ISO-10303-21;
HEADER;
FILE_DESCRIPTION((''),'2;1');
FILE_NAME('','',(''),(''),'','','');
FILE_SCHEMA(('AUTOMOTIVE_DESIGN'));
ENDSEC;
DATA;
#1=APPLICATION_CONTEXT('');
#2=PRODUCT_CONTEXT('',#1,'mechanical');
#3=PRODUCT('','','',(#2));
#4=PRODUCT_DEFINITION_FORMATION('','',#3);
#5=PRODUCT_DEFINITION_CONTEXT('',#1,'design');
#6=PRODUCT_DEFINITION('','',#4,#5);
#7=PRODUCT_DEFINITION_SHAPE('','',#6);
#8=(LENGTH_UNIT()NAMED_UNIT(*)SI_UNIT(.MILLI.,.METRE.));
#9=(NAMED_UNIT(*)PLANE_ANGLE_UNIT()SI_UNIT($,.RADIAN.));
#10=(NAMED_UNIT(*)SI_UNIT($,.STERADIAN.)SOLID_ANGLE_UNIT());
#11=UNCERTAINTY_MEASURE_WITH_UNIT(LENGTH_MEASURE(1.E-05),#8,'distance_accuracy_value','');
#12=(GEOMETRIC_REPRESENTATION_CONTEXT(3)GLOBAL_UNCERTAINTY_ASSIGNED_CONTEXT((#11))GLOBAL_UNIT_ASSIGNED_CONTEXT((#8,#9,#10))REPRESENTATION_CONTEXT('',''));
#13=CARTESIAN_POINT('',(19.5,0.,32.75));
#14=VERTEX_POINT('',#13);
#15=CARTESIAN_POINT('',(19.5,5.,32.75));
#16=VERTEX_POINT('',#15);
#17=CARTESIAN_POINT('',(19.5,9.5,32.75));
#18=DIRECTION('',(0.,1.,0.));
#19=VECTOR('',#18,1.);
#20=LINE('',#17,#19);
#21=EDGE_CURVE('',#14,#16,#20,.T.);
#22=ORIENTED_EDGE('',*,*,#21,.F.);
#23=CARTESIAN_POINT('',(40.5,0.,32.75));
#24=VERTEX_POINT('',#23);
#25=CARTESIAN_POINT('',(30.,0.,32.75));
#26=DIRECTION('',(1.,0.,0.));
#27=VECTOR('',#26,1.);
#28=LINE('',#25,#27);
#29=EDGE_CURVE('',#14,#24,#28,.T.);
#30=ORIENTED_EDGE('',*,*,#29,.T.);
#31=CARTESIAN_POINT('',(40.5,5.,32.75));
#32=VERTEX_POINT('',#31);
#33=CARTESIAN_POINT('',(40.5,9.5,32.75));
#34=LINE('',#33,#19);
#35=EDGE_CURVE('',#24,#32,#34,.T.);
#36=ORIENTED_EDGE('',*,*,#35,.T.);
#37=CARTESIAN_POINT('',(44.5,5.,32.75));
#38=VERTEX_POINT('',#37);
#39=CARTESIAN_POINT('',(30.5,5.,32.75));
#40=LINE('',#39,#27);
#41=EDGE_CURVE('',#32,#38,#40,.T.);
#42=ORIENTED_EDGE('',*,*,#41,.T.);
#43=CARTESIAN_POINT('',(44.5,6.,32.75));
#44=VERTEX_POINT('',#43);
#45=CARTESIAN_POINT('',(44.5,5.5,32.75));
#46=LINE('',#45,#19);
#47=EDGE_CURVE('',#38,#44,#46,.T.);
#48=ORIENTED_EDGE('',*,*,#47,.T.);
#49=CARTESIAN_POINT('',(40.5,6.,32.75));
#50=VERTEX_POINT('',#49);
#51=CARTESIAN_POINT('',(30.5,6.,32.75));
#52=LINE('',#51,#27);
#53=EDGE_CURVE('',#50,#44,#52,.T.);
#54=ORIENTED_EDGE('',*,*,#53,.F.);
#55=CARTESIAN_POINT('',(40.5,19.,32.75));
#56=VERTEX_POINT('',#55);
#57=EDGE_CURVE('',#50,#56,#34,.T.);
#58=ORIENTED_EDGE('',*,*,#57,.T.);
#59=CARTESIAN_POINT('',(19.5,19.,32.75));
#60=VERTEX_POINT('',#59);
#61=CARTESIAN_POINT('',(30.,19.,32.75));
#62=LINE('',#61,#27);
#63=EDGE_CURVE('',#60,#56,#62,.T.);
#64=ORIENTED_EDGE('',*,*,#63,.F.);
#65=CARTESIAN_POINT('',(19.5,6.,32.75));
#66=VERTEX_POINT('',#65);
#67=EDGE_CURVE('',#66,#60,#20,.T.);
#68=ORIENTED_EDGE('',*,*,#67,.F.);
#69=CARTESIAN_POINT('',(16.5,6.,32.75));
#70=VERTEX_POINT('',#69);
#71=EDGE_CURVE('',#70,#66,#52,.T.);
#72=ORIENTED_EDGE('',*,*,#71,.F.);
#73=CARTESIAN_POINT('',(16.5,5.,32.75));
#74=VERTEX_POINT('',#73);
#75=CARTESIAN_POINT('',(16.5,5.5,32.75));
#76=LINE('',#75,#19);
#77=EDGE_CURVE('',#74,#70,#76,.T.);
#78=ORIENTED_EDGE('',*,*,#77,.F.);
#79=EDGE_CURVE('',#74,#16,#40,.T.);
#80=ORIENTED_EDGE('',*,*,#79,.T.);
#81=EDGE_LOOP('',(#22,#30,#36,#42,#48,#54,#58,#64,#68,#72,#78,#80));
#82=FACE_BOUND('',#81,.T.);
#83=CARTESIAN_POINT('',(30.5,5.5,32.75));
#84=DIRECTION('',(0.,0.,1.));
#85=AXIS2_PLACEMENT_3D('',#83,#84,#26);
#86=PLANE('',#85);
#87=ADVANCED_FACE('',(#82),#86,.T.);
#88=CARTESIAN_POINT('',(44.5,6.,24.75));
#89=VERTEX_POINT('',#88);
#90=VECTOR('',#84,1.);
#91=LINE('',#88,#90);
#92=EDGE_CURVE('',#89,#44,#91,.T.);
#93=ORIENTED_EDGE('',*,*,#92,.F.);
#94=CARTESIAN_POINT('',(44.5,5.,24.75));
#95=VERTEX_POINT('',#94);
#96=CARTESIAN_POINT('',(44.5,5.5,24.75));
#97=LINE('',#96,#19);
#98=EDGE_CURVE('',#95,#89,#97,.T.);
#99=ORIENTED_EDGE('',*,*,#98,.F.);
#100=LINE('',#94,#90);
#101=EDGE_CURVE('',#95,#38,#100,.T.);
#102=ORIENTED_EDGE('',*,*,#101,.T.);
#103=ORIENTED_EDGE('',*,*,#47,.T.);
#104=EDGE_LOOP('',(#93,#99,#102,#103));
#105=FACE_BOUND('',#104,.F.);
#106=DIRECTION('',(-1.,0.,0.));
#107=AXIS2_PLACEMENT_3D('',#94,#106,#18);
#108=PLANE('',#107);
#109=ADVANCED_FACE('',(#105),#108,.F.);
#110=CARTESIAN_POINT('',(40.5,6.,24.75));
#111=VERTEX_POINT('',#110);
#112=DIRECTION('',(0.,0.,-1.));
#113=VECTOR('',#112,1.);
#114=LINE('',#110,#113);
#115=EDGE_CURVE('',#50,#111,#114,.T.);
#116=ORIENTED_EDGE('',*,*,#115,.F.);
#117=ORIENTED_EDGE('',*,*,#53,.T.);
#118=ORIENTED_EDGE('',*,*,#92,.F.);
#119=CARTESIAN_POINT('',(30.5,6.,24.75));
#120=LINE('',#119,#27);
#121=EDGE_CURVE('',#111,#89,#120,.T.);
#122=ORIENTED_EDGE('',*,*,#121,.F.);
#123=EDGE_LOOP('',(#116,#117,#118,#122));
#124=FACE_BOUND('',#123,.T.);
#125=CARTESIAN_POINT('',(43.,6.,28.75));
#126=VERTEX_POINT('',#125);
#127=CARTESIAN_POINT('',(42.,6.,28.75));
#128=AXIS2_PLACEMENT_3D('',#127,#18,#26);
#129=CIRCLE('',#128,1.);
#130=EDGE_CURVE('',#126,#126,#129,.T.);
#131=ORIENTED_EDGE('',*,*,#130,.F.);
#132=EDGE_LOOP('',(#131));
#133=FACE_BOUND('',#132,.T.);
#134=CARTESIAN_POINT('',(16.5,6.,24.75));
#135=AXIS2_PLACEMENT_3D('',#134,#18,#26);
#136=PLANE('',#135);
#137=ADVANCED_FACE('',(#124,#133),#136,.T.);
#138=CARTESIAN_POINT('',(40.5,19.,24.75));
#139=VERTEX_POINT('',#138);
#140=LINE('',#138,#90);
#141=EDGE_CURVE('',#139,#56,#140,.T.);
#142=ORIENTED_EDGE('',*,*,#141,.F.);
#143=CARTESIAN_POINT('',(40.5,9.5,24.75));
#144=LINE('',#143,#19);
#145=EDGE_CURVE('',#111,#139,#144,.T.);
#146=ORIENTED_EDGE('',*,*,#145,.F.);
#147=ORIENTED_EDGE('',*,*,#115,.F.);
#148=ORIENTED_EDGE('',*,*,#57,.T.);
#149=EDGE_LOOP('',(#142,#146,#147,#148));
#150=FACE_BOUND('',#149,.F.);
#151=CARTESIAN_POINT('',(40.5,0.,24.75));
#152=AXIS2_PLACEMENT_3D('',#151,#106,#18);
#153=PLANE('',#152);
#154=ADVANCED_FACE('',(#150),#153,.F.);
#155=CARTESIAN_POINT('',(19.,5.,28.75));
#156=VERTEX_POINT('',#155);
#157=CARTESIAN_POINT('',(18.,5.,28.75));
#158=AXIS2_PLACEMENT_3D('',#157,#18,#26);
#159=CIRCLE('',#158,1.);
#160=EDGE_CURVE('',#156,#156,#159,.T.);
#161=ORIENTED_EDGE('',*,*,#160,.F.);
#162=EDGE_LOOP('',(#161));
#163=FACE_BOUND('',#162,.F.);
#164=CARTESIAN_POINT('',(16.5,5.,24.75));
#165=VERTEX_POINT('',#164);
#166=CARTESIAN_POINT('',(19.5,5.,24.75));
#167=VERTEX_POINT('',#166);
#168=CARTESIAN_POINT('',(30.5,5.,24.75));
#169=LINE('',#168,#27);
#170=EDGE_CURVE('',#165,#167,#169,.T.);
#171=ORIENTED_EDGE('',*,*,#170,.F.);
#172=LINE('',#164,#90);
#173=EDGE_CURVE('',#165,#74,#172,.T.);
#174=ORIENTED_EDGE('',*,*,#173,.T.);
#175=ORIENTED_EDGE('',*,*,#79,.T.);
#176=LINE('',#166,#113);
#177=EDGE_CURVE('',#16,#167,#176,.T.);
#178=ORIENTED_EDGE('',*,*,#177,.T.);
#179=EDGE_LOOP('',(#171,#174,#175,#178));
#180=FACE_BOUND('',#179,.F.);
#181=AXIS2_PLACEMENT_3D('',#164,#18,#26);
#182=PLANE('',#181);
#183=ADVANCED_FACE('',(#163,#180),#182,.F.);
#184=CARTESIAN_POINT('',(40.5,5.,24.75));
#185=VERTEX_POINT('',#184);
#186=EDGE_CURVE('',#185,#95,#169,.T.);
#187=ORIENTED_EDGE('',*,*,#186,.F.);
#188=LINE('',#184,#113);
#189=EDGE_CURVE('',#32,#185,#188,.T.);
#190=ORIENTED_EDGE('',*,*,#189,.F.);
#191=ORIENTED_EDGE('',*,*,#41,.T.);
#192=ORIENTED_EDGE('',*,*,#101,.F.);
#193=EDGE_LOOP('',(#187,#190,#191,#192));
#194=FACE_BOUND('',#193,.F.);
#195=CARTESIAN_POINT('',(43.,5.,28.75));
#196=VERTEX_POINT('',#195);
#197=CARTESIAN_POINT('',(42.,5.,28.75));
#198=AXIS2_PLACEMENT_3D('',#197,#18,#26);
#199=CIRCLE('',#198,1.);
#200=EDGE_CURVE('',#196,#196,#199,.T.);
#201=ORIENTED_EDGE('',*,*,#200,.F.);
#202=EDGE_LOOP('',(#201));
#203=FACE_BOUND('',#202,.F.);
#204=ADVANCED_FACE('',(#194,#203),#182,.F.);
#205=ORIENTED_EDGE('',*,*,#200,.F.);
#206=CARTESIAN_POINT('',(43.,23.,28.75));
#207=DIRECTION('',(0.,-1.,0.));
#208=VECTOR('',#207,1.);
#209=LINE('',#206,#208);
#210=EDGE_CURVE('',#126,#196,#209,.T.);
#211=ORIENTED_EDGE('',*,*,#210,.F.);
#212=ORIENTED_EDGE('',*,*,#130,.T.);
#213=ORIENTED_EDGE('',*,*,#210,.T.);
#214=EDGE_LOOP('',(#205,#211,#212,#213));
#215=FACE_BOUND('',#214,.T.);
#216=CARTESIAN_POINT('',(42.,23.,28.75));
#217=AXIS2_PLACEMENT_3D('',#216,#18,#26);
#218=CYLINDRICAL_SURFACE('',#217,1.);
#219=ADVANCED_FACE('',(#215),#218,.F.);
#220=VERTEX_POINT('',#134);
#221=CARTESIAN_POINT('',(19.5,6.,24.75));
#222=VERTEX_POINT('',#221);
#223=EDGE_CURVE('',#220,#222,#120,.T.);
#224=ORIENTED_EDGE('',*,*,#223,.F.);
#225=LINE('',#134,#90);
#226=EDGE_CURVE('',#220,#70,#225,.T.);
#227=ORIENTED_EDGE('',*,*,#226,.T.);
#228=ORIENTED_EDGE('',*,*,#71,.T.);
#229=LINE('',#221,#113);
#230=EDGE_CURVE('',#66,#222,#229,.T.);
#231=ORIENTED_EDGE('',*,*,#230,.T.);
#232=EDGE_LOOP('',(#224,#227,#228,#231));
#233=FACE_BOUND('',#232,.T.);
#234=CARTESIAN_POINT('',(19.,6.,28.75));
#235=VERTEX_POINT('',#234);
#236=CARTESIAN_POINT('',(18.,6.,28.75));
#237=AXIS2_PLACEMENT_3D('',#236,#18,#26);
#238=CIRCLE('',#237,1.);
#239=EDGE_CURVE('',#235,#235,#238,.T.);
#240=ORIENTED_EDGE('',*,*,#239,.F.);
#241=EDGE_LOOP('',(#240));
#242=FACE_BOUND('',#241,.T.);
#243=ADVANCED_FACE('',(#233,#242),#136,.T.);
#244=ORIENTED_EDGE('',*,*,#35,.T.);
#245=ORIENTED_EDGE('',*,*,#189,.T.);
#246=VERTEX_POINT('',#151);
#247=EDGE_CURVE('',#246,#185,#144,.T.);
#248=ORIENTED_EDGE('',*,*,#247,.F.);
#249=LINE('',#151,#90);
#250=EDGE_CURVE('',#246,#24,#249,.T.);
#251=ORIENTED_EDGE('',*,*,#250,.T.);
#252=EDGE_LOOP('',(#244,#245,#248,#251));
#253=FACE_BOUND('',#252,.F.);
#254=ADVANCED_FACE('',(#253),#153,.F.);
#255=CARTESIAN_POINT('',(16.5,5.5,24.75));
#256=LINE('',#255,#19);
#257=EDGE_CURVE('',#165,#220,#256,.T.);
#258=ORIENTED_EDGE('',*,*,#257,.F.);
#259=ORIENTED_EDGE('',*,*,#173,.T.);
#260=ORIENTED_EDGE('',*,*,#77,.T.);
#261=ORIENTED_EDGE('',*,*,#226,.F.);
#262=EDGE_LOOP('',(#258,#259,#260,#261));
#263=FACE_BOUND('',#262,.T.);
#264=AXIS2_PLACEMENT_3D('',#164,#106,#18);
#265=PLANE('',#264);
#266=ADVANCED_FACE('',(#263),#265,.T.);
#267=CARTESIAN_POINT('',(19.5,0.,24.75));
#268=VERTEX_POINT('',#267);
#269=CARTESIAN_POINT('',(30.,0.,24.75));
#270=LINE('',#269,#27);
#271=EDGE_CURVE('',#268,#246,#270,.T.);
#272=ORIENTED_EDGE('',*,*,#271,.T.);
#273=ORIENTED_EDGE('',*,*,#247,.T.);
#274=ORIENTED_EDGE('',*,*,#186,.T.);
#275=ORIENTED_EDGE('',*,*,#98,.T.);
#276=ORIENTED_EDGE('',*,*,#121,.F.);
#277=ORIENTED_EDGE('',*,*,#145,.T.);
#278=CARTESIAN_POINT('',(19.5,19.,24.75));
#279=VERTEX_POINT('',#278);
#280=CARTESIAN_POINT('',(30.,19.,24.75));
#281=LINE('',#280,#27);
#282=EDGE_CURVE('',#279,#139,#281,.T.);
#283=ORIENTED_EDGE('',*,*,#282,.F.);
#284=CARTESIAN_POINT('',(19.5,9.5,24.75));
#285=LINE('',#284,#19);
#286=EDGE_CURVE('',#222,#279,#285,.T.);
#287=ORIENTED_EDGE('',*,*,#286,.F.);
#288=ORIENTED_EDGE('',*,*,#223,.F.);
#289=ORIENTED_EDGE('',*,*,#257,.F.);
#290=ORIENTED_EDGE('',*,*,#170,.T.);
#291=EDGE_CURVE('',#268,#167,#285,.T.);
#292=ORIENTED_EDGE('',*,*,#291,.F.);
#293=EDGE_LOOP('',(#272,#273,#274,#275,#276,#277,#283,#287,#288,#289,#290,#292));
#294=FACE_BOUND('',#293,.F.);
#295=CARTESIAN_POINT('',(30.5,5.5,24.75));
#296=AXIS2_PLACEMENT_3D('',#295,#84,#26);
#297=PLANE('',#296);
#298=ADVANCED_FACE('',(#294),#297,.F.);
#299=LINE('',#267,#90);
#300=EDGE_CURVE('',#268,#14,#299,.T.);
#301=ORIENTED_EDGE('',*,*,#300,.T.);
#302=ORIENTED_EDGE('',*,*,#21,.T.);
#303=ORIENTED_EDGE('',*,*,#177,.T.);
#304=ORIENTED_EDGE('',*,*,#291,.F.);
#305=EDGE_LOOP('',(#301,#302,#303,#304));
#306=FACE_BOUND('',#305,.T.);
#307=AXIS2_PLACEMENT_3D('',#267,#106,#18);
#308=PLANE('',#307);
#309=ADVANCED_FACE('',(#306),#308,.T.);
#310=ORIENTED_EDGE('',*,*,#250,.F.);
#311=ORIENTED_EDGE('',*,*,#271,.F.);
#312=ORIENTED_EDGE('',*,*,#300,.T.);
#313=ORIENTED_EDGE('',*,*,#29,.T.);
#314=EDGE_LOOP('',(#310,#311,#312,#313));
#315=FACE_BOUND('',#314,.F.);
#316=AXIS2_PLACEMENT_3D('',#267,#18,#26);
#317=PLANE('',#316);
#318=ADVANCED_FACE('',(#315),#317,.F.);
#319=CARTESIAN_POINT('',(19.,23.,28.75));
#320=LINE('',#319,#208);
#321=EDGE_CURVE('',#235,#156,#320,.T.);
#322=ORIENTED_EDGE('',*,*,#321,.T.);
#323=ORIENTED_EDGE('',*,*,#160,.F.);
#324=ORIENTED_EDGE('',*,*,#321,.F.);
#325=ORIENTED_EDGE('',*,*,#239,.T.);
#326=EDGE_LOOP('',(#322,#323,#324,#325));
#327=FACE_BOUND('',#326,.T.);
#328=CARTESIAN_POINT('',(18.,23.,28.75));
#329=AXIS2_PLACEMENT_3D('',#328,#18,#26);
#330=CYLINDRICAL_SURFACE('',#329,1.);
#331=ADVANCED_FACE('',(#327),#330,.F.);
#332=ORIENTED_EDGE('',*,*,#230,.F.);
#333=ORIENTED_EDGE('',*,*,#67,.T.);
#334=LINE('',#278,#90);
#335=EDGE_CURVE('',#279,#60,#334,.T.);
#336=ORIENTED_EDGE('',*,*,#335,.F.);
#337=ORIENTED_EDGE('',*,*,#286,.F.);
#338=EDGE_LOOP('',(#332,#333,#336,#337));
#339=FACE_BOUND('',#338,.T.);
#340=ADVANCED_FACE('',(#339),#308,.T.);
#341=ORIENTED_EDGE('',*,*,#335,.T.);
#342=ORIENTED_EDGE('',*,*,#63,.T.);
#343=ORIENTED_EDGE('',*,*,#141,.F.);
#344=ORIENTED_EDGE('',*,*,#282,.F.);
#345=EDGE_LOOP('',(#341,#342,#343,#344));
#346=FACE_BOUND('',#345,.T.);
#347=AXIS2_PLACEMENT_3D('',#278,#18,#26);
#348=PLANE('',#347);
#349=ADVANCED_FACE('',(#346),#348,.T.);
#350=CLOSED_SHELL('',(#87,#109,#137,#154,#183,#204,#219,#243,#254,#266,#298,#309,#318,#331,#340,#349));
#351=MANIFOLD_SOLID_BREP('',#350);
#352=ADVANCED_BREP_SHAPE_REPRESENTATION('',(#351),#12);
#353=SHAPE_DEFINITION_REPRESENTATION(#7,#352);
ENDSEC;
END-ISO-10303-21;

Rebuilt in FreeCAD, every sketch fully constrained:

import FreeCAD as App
import Part
import Sketcher
from FreeCAD import Vector


def add_polygon(sketch, points):
    """Adds a closed chain of lines whose ends are joined by coincident constraints."""
    first, n = sketch.GeometryCount, len(points)
    for a, b in zip(points, points[1:] + points[:1]):
        sketch.addGeometry(Part.LineSegment(App.Vector(*a, 0), App.Vector(*b, 0)), False)
    for i in range(n):
        sketch.addConstraint(Sketcher.Constraint("Coincident", first + i, 2, first + (i + 1) % n, 1))

doc = App.newDocument("Part")
params = doc.addObject("Spreadsheet::Sheet", "Params")
for row, (alias, value) in enumerate([
    ("sketch1_diameter", "2 mm"),
    ("pad1_length", "20 mm"),
    ("sketch2_diameter", "2 mm"),
    ("pad2_length", "20 mm"),
    ("sketch3_width", "28 mm"),
    ("sketch3_height", "1 mm"),
    ("pad3_length", "8 mm"),
    ("sketch4_width", "21 mm"),
    ("sketch4_height", "19 mm"),
    ("pad4_length", "8 mm"),
], start=1):
    params.set(f"A{row}", alias)
    params.set(f"B{row}", "=" + value)
    params.setAlias(f"B{row}", alias)

body = doc.addObject("PartDesign::Body", "Body")

# Sketch on XZ plane
sketch1 = doc.addObject("Sketcher::SketchObject", "Sketch")
body.addObject(sketch1)
sketch1.AttachmentSupport = (doc.XZ_Plane, [""])
sketch1.MapMode = "FlatFace"
sketch1.AttachmentOffset = App.Placement(Vector(0, 0, -23), App.Rotation())
sketch1.addGeometry(Part.Circle(Vector(22.5, 30.5, 0), Vector(0, 0, 1), 1), False)
sketch1.addConstraint(Sketcher.Constraint("Diameter", 0, 2.0))
sketch1.addConstraint(Sketcher.Constraint("DistanceX", -1, 1, 0, 3, 22.5))
sketch1.addConstraint(Sketcher.Constraint("DistanceY", -1, 1, 0, 3, 30.5))
sketch1.setExpression("Constraints[0]", "Params.sketch1_diameter")
pad1 = doc.addObject("PartDesign::Pad", "Pad")
body.addObject(pad1)
pad1.Profile = sketch1
pad1.setExpression("Length", "Params.pad1_length")
body2 = doc.addObject("PartDesign::Body", "Body001")
body2.AllowCompound = True

# Sketch on XZ plane
sketch2 = doc.addObject("Sketcher::SketchObject", "Sketch001")
body2.addObject(sketch2)
sketch2.AttachmentSupport = (doc.getObject("XZ_Plane001"), [""])
sketch2.MapMode = "FlatFace"
sketch2.AttachmentOffset = App.Placement(Vector(0, 0, -23), App.Rotation())
sketch2.addGeometry(Part.Circle(Vector(-1.5, 30.5, 0), Vector(0, 0, 1), 1), False)
sketch2.addConstraint(Sketcher.Constraint("Diameter", 0, 2.0))
sketch2.addConstraint(Sketcher.Constraint("DistanceX", 0, 3, -1, 1, 1.5))
sketch2.addConstraint(Sketcher.Constraint("DistanceY", -1, 1, 0, 3, 30.5))
sketch2.setExpression("Constraints[0]", "Params.sketch2_diameter")
pad2 = doc.addObject("PartDesign::Pad", "Pad001")
body2.addObject(pad2)
pad2.Profile = sketch2
pad2.setExpression("Length", "Params.pad2_length")
doc.recompute()

boolean = doc.addObject("PartDesign::Boolean", "Boolean")
body2.addObject(boolean)
boolean.Type = "Fuse"
boolean.addObjects([body])
body3 = doc.addObject("PartDesign::Body", "Body002")

# Sketch on XY plane
sketch3 = doc.addObject("Sketcher::SketchObject", "Sketch002")
body3.addObject(sketch3)
sketch3.AttachmentSupport = (doc.getObject("XY_Plane002"), [""])
sketch3.MapMode = "FlatFace"
sketch3.AttachmentOffset = App.Placement(Vector(0, 0, 26.5), App.Rotation())
add_polygon(sketch3, [(-3, 6), (-3, 5), (25, 5), (25, 6)])  # lines 0-3
sketch3.addConstraint(Sketcher.Constraint("Vertical", 0))
sketch3.addConstraint(Sketcher.Constraint("Horizontal", 1))
sketch3.addConstraint(Sketcher.Constraint("Vertical", 2))
sketch3.addConstraint(Sketcher.Constraint("Horizontal", 3))
sketch3.addConstraint(Sketcher.Constraint("DistanceX", 1, 1, 1, 2, 28.0))
sketch3.addConstraint(Sketcher.Constraint("DistanceY", 0, 2, 0, 1, 1.0))
sketch3.addConstraint(Sketcher.Constraint("DistanceX", 0, 2, -1, 1, 3.0))
sketch3.addConstraint(Sketcher.Constraint("DistanceY", -1, 1, 0, 2, 5.0))
sketch3.setExpression("Constraints[8]", "Params.sketch3_width")
sketch3.setExpression("Constraints[9]", "Params.sketch3_height")
pad3 = doc.addObject("PartDesign::Pad", "Pad002")
body3.addObject(pad3)
pad3.Profile = sketch3
pad3.setExpression("Length", "Params.pad3_length")
body4 = doc.addObject("PartDesign::Body", "Body003")

# Sketch on XY plane
sketch4 = doc.addObject("Sketcher::SketchObject", "Sketch003")
body4.addObject(sketch4)
sketch4.AttachmentSupport = (doc.getObject("XY_Plane003"), [""])
sketch4.MapMode = "FlatFace"
sketch4.AttachmentOffset = App.Placement(Vector(0, 0, 26.5), App.Rotation())
add_polygon(sketch4, [(0, 19), (0, 0), (21, 0), (21, 19)])  # lines 0-3
sketch4.addConstraint(Sketcher.Constraint("Vertical", 0))
sketch4.addConstraint(Sketcher.Constraint("Horizontal", 1))
sketch4.addConstraint(Sketcher.Constraint("Vertical", 2))
sketch4.addConstraint(Sketcher.Constraint("Horizontal", 3))
sketch4.addConstraint(Sketcher.Constraint("Coincident", 0, 2, -1, 1))
sketch4.addConstraint(Sketcher.Constraint("DistanceX", 1, 1, 1, 2, 21.0))
sketch4.addConstraint(Sketcher.Constraint("DistanceY", 0, 2, 0, 1, 19.0))
sketch4.setExpression("Constraints[9]", "Params.sketch4_width")
sketch4.setExpression("Constraints[10]", "Params.sketch4_height")
pad4 = doc.addObject("PartDesign::Pad", "Pad003")
body4.addObject(pad4)
pad4.Profile = sketch4
pad4.setExpression("Length", "Params.pad4_length")
doc.recompute()

boolean2 = doc.addObject("PartDesign::Boolean", "Boolean001")
body4.addObject(boolean2)
boolean2.Type = "Fuse"
boolean2.addObjects([body3])
doc.recompute()

boolean3 = doc.addObject("PartDesign::Boolean", "Boolean002")
body4.addObject(boolean3)
boolean3.Type = "Cut"
boolean3.addObjects([body2])
body5 = doc.addObject("PartDesign::Body", "Body004")
doc.recompute()

body4.Placement = App.Placement(Vector(19.5, 0, -1.75), App.Rotation(Vector(0, 0, 1), 0))
boolean4 = doc.addObject("PartDesign::Boolean", "Boolean003")
body5.addObject(boolean4)
boolean4.Type = "Fuse"
boolean4.addObjects([body4])

doc.recompute()
